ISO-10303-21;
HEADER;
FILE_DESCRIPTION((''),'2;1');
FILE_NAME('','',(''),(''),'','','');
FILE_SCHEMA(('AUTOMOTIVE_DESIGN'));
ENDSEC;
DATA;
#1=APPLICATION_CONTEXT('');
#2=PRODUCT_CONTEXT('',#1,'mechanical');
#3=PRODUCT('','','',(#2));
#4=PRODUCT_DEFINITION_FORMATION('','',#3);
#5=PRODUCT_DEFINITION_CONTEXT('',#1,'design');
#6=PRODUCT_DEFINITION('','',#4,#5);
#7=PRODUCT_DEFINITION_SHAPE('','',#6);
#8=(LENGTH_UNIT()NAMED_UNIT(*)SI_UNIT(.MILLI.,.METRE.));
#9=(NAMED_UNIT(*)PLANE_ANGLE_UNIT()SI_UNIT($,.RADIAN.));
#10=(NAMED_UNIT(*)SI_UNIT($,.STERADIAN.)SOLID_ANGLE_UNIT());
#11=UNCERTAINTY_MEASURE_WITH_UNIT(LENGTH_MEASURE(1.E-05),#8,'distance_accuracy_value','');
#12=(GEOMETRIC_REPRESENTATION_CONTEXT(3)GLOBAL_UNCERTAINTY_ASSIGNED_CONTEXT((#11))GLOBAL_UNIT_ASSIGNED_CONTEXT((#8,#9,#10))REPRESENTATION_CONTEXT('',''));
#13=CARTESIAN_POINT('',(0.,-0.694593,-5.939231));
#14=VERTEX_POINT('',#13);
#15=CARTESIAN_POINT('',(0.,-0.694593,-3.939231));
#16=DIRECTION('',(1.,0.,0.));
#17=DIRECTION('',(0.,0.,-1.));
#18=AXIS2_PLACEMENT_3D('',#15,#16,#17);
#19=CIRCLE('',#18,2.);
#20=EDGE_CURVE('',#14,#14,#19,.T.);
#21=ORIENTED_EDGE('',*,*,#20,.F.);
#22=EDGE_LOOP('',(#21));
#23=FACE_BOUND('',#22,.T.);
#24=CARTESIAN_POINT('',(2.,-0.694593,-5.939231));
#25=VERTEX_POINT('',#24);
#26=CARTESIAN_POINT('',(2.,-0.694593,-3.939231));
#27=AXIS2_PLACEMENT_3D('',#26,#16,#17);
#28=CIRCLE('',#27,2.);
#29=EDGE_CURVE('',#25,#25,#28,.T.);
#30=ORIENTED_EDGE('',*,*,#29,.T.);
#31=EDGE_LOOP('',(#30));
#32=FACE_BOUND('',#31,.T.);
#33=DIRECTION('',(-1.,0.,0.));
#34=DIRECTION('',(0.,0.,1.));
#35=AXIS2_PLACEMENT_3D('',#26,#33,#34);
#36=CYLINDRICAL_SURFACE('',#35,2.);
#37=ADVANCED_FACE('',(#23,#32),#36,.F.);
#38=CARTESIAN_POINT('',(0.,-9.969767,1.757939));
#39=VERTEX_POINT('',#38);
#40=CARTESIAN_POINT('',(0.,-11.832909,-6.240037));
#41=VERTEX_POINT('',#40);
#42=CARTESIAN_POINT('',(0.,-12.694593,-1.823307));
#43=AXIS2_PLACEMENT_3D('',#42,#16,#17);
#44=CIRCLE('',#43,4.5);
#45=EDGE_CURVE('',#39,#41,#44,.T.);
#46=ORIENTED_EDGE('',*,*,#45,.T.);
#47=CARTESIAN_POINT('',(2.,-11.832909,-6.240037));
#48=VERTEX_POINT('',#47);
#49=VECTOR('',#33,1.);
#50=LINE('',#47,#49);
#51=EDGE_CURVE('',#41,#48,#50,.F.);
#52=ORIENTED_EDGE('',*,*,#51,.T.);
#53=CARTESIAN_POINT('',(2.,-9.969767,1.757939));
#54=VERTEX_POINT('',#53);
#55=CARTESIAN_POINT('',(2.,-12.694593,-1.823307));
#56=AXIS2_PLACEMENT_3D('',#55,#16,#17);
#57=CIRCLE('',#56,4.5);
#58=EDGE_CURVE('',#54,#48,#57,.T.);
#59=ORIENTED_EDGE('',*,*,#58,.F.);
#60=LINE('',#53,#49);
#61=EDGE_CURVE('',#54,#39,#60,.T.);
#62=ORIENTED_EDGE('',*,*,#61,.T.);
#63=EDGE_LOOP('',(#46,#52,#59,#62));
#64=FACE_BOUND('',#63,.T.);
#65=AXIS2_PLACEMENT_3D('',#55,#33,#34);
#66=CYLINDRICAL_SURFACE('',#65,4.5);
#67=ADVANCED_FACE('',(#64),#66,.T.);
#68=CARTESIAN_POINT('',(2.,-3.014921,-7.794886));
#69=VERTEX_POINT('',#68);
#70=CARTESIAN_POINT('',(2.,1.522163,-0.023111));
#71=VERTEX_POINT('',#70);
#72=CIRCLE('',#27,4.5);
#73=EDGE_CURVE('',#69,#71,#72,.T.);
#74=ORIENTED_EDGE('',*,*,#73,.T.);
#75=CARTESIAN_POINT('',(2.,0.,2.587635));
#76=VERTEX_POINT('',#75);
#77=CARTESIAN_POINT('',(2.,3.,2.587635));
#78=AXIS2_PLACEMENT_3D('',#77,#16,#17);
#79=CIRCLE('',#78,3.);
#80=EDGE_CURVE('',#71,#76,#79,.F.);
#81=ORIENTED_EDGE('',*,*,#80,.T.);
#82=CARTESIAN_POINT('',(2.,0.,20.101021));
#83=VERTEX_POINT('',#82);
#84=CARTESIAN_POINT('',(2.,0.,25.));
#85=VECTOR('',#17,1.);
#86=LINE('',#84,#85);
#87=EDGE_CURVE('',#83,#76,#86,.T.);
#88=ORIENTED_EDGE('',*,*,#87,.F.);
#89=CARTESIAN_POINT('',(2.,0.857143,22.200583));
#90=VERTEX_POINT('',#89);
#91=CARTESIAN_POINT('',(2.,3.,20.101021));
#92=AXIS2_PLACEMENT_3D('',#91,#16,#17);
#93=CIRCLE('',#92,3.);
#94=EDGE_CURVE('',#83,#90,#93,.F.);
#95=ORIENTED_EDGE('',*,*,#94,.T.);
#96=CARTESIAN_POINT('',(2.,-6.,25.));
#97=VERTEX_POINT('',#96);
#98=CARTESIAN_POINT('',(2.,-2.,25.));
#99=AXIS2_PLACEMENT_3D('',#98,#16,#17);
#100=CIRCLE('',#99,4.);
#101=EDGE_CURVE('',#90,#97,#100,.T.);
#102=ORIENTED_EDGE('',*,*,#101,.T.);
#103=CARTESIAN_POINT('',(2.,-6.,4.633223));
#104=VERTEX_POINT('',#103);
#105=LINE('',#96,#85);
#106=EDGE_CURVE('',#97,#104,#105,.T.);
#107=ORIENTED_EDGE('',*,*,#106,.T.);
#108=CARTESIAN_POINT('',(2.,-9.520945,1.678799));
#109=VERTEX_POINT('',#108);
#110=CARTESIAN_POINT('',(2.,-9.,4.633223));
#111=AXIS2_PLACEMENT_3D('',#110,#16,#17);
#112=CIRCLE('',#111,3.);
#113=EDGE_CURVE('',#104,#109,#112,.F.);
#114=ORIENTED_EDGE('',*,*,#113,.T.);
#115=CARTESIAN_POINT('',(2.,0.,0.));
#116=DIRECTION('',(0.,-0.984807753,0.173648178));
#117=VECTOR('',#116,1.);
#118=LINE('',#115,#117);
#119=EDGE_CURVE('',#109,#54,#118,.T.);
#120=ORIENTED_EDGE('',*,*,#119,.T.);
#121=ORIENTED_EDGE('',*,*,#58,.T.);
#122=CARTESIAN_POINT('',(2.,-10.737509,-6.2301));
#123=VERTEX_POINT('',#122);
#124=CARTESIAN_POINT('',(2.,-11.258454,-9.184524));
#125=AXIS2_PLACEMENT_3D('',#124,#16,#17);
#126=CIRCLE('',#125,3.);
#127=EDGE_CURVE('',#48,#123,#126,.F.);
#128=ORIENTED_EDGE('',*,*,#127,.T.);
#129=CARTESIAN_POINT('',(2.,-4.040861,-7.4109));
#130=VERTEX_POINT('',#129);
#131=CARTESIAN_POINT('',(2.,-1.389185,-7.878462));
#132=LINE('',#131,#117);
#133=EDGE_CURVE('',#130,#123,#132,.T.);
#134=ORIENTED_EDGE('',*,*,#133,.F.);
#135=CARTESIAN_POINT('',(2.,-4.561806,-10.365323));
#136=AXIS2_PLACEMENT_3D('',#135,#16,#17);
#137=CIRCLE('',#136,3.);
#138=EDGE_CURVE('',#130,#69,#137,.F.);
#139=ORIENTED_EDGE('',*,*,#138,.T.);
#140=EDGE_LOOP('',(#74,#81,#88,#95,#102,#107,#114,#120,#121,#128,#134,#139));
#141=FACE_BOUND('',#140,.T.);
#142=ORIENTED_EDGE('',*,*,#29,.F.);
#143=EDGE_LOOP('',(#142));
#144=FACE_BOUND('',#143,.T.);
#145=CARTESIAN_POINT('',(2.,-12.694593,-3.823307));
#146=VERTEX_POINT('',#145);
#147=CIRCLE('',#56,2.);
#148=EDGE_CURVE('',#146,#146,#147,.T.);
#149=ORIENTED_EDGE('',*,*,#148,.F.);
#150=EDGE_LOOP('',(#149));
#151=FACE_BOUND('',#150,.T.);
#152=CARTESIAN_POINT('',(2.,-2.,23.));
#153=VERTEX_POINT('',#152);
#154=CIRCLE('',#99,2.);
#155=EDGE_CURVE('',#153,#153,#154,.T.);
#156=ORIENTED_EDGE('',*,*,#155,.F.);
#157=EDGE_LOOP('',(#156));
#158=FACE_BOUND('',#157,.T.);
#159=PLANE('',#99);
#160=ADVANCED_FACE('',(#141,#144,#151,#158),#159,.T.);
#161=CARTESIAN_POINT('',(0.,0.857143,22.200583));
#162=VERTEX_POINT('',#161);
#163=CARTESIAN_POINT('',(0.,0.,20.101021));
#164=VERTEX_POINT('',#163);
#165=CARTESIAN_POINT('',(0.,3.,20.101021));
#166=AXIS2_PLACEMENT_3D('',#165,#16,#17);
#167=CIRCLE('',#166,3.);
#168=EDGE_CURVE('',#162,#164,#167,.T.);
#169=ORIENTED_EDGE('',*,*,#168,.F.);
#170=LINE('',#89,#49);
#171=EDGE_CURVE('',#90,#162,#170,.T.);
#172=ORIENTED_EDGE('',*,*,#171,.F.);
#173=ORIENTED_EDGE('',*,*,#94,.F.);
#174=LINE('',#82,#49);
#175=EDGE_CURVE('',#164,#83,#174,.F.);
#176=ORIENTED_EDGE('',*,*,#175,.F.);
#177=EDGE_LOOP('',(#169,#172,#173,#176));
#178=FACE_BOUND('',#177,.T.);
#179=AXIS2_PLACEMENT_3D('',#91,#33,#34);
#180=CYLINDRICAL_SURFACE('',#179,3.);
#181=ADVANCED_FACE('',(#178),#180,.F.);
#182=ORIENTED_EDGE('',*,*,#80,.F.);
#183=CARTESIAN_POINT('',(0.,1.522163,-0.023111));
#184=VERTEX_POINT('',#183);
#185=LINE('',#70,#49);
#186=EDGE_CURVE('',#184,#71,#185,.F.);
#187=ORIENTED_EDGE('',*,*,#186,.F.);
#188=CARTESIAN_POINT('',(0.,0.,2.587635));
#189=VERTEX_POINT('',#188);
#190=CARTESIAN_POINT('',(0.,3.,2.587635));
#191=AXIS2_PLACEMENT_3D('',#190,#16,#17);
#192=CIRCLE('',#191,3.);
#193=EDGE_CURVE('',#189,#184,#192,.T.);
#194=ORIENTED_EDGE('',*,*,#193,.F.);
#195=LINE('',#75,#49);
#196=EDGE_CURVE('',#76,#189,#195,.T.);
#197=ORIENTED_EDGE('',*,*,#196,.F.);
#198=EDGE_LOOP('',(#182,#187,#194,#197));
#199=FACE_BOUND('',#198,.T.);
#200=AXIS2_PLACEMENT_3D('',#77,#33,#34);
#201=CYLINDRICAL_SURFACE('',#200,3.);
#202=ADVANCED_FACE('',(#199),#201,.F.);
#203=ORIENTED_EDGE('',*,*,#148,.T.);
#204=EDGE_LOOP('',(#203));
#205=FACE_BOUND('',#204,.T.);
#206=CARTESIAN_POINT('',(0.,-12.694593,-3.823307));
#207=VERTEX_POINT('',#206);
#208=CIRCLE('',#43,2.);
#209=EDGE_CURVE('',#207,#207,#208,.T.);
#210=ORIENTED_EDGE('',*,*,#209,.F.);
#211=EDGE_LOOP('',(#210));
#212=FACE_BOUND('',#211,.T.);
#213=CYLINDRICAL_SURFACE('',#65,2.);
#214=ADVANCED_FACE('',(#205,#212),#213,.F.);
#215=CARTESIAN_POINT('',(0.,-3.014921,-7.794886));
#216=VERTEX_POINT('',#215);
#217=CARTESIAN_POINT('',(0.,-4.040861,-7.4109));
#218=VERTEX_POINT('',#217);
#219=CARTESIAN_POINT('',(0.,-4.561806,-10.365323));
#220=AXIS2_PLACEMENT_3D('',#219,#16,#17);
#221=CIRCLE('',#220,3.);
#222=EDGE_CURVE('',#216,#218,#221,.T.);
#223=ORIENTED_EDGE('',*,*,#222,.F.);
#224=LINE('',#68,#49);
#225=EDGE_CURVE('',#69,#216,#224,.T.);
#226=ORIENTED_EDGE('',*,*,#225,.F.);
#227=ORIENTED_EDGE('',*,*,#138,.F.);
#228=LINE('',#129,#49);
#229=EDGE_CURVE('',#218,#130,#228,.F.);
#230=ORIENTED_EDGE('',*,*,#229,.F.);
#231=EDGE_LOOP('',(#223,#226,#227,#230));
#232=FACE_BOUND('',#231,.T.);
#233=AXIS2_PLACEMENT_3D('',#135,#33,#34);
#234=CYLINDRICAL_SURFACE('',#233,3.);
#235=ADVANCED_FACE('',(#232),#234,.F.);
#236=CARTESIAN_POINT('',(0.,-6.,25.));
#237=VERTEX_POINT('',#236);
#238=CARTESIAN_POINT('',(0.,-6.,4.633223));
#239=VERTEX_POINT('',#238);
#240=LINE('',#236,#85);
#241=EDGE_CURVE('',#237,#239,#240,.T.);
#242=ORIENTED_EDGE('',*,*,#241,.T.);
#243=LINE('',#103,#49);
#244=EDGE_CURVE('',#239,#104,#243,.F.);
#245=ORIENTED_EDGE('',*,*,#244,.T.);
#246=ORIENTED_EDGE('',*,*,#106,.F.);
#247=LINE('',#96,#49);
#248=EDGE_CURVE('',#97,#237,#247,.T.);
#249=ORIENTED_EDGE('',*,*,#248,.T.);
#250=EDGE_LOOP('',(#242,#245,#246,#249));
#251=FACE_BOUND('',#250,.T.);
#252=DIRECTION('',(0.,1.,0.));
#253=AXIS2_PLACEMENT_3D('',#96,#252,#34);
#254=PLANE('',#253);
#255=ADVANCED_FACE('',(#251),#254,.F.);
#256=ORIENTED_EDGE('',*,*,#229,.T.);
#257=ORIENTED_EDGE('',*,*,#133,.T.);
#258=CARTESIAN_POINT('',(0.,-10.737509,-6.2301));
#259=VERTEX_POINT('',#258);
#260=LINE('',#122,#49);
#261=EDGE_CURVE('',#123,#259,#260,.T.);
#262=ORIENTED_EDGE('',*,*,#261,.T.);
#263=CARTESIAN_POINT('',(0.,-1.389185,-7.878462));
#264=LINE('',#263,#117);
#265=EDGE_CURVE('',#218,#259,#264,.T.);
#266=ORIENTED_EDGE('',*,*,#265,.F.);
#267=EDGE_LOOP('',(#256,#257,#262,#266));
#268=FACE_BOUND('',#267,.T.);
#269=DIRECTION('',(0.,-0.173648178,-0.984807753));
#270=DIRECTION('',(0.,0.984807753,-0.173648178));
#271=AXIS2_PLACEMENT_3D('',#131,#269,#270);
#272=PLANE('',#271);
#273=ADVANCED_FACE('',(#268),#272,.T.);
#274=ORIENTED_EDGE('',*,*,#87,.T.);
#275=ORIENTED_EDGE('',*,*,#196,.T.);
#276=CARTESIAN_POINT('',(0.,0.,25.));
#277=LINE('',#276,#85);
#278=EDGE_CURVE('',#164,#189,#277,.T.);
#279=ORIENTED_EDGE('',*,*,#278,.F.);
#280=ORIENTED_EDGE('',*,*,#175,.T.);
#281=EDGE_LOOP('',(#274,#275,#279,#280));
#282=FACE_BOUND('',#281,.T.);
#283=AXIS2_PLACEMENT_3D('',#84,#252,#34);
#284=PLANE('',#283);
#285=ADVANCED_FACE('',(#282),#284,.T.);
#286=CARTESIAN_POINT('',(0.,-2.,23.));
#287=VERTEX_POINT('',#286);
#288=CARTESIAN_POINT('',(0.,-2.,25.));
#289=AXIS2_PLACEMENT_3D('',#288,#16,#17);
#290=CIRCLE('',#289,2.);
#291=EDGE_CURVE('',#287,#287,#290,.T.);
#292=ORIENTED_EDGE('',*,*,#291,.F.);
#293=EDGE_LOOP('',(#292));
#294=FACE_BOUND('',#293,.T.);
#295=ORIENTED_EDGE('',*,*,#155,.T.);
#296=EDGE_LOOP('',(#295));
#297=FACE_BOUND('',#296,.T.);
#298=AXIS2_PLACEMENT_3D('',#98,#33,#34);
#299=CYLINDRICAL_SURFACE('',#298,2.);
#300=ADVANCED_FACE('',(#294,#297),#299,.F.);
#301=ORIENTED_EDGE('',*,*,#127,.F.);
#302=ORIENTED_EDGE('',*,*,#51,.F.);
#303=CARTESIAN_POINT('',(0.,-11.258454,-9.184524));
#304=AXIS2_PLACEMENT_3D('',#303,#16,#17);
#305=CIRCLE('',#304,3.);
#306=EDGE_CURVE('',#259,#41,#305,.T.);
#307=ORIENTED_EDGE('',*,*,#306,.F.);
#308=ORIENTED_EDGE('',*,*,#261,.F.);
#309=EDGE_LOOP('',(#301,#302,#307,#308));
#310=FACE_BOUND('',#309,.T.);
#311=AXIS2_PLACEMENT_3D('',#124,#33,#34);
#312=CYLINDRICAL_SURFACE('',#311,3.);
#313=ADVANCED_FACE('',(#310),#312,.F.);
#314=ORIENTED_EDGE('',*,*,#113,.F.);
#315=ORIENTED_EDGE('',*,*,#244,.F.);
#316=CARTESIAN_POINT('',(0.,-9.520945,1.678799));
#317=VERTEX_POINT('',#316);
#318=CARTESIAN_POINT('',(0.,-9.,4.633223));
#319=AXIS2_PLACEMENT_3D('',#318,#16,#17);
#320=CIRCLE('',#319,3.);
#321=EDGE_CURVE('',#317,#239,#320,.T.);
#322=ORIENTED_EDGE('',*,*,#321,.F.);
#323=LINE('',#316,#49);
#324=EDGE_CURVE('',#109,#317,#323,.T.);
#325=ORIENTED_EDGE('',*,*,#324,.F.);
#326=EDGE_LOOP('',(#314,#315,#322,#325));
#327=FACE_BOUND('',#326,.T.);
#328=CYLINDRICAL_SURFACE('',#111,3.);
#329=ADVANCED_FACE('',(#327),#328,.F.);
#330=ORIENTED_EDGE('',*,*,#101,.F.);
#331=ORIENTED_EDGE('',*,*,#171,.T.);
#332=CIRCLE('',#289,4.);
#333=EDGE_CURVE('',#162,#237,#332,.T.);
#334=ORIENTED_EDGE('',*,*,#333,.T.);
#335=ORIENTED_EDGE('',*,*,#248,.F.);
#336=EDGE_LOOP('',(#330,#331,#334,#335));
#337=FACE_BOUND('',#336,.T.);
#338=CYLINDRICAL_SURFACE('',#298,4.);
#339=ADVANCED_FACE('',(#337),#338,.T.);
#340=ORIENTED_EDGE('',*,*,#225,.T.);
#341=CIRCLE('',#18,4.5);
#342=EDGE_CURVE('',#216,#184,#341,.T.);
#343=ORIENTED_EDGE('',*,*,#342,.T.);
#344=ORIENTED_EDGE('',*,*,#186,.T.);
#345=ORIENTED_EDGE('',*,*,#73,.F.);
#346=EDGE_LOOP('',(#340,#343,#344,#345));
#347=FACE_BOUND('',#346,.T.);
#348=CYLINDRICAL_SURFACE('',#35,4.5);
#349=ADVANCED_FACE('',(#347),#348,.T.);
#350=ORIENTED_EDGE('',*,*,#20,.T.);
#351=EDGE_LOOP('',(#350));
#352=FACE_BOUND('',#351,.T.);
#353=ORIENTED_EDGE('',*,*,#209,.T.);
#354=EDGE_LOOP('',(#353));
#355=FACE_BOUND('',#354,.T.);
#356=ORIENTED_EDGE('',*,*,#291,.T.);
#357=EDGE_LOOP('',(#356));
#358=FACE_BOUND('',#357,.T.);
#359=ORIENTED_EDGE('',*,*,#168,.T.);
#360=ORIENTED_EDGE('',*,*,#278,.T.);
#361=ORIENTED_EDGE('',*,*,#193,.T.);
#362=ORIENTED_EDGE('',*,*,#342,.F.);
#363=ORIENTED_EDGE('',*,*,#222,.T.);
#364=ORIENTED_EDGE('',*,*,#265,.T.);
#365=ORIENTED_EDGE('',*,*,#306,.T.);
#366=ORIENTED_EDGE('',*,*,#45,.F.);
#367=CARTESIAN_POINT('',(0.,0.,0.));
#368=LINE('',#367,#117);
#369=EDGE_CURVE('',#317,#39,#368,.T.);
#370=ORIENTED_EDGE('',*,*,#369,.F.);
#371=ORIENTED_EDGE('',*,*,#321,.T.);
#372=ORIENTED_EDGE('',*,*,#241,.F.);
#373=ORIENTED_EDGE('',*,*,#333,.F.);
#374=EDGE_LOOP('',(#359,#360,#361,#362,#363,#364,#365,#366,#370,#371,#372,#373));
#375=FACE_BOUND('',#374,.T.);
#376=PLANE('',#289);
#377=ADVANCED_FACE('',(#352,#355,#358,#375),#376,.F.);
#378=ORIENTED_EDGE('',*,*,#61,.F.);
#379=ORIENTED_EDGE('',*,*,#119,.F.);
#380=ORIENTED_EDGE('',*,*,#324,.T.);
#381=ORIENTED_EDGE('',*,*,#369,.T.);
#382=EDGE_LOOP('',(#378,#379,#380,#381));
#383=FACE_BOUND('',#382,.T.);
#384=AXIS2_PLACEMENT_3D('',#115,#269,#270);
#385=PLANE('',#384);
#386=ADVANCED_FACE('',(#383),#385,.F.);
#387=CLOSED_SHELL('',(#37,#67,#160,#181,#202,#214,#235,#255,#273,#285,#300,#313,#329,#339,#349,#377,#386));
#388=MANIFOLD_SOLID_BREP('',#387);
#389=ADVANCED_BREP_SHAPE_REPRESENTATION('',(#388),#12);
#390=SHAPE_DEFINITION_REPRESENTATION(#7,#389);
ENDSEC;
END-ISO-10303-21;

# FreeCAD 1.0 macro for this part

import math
import FreeCAD as App
import Part
import Sketcher

V = App.Vector
Q = App.Units.Quantity


def edges_at(feature, points):
    """Names of the edges that pass closest to the given points."""
    edges = feature.Shape.Edges
    near = lambda p: min(range(len(edges)), key=lambda i: edges[i].distToShape(Part.Vertex(*p))[0])
    return sorted({f"Edge{near(p) + 1}" for p in points})

doc = App.newDocument("Part")
params = doc.addObject("Spreadsheet::Sheet", "Params")
for row, (alias, value) in enumerate([
    ("sketch1_radius", "4 mm"),
    ("sketch1_radius2", "4.5 mm"),
    ("pad1_length", "2 mm"),
    ("sketch2_diameter", "4 mm"),
    ("fillet_radius", "3 mm"),
], start=1):
    params.set(f"A{row}", alias)
    params.set(f"B{row}", "=" + value)
    params.setAlias(f"B{row}", alias)

body = doc.addObject("PartDesign::Body", "Body")

# Sketch on YZ plane
sketch1 = body.newObject("Sketcher::SketchObject", "Sketch")
sketch1.AttachmentSupport = (doc.getObject("YZ_Plane"), [""])
sketch1.MapMode = "FlatFace"
sketch1.addGeometry(Part.ArcOfCircle(Part.Circle(V(-0.7, -3.9, 0), V(0, 0, 1), 4.5), math.radians(-127), math.radians(-90)), False)
sketch1.addGeometry(Part.ArcOfCircle(Part.Circle(V(-0.7, -3.9, 0), V(0, 0, 1), 4.5), math.radians(-90), math.radians(81)), False)
sketch1.addGeometry(Part.LineSegment(V(0, 0.5, 0), V(0, 21.5, 0)), False)
sketch1.addGeometry(Part.ArcOfCircle(Part.Circle(V(-2, 25, 0), V(0, 0, 1), 4), math.radians(-60), math.radians(180)), False)
sketch1.addGeometry(Part.LineSegment(V(-6, 25, 0), V(-6, 1.1, 0)), False)
sketch1.addGeometry(Part.LineSegment(V(-6, 1.1, 0), V(-10, 1.8, 0)), False)
sketch1.addGeometry(Part.ArcOfCircle(Part.Circle(V(-12.7, -1.8, 0), V(0, 0, 1), 4.5), math.radians(53), math.radians(270)), False)
sketch1.addGeometry(Part.ArcOfCircle(Part.Circle(V(-12.7, -1.8, 0), V(0, 0, 1), 4.5), math.radians(-90), math.radians(-72.73)), False)
sketch1.addGeometry(Part.LineSegment(V(-11.4, -6.1, 0), V(-3.4, -7.5, 0)), False)
sketch1.addConstraint(Sketcher.Constraint("Tangent", 0, 2, 1, 1))
sketch1.addConstraint(Sketcher.Constraint("Coincident", 1, 2, 2, 1))
sketch1.addConstraint(Sketcher.Constraint("Coincident", 2, 2, 3, 1))
sketch1.addConstraint(Sketcher.Constraint("Tangent", 3, 2, 4, 1))
sketch1.addConstraint(Sketcher.Constraint("Coincident", 4, 2, 5, 1))
sketch1.addConstraint(Sketcher.Constraint("Coincident", 5, 2, 6, 1))
sketch1.addConstraint(Sketcher.Constraint("Tangent", 6, 2, 7, 1))
sketch1.addConstraint(Sketcher.Constraint("Coincident", 7, 2, 8, 1))
sketch1.addConstraint(Sketcher.Constraint("Coincident", 8, 2, 0, 1))
sketch1.addConstraint(Sketcher.Constraint("Vertical", 2))
sketch1.addConstraint(Sketcher.Constraint("Vertical", 4))
sketch1.addConstraint(Sketcher.Constraint("Equal", 0, 1))
sketch1.addConstraint(Sketcher.Constraint("Equal", 1, 6))
sketch1.addConstraint(Sketcher.Constraint("Equal", 6, 7))
sketch1.addConstraint(Sketcher.Constraint("PointOnObject", 1, 2, -2))
sketch1.addConstraint(Sketcher.Constraint("Parallel", 5, 8))
sketch1.addConstraint(Sketcher.Constraint("Vertical", 1, 3, 0, 2))
sketch1.addConstraint(Sketcher.Constraint("Vertical", 7, 3, 6, 2))
sketch1.addConstraint(Sketcher.Constraint("Radius", 3, Q("4 mm")))
sketch1.addConstraint(Sketcher.Constraint("Radius", 0, Q("4.5 mm")))
sketch1.addConstraint(Sketcher.Constraint("Angle", 5, Q("170 deg")))
sketch1.addConstraint(Sketcher.Constraint("DistanceX", 3, 3, -1, 1, Q("2 mm")))
sketch1.addConstraint(Sketcher.Constraint("DistanceY", -1, 1, 3, 3, Q("25 mm")))
sketch1.addConstraint(Sketcher.Constraint("DistanceX", 6, 3, 0, 3, Q("12 mm")))
sketch1.addConstraint(Sketcher.Constraint("DistanceY", 2, 1, 2, 2, Q("21.029059 mm")))
sketch1.addConstraint(Sketcher.Constraint("DistanceY", 4, 2, 4, 1, Q("23.942038 mm")))
sketch1.addConstraint(Sketcher.Constraint("DistanceY", 1, 2, 5, 2, Q("1.2511 mm")))
sketch1.addConstraint(Sketcher.Constraint("DistanceY", 0, 3, -1, 1, Q("3.939231 mm")))
sketch1.addConstraint(Sketcher.Constraint("DistanceX", 8, 2, -1, 1, Q("3.419419 mm")))
sketch1.setExpression("Constraints[18]", "Params.sketch1_radius")
sketch1.setExpression("Constraints[19]", "Params.sketch1_radius2")
pad1 = body.newObject("PartDesign::Pad", "Pad")
pad1.Profile = sketch1
pad1.setExpression("Length", "Params.pad1_length")

# Sketch on YZ plane
sketch2 = body.newObject("Sketcher::SketchObject", "Sketch001")
sketch2.AttachmentSupport = (doc.getObject("YZ_Plane"), [""])
sketch2.MapMode = "FlatFace"
sketch2.addGeometry(Part.Circle(V(-2, 25, 0), V(0, 0, 1), 2), False)
sketch2.addGeometry(Part.Circle(V(-0.7, -3.9, 0), V(0, 0, 1), 2), False)
sketch2.addGeometry(Part.Circle(V(-12.7, -1.8, 0), V(0, 0, 1), 2), False)
sketch2.addConstraint(Sketcher.Constraint("Equal", 0, 1))
sketch2.addConstraint(Sketcher.Constraint("Equal", 1, 2))
sketch2.addConstraint(Sketcher.Constraint("Diameter", 0, Q("4 mm")))
sketch2.addConstraint(Sketcher.Constraint("DistanceX", 0, 3, -1, 1, Q("2 mm")))
sketch2.addConstraint(Sketcher.Constraint("DistanceY", -1, 1, 0, 3, Q("25 mm")))
sketch2.addConstraint(Sketcher.Constraint("DistanceX", 2, 3, 1, 3, Q("12 mm")))
sketch2.addConstraint(Sketcher.Constraint("DistanceY", 1, 3, -1, 1, Q("3.939231 mm")))
sketch2.addConstraint(Sketcher.Constraint("DistanceX", 1, 3, -1, 1, Q("0.694593 mm")))
sketch2.addConstraint(Sketcher.Constraint("DistanceY", 2, 3, -1, 1, Q("1.823307 mm")))
sketch2.setExpression("Constraints[2]", "Params.sketch2_diameter")
pocket1 = body.newObject("PartDesign::Pocket", "Pocket")
pocket1.Profile = sketch2
pocket1.Type = "ThroughAll"
pocket1.Reversed = True
doc.recompute()

fillet = body.newObject("PartDesign::Fillet", "Fillet")
fillet.Base = (pocket1, edges_at(pocket1, [
    (1, -6, 1.058),
    (1, 0, 0.507),
    (1, -3.419, -7.52),
    (1, -11.359, -6.121),
    (1, 0, 21.536),
]))
fillet.setExpression("Radius", "Params.fillet_radius")

doc.recompute()
